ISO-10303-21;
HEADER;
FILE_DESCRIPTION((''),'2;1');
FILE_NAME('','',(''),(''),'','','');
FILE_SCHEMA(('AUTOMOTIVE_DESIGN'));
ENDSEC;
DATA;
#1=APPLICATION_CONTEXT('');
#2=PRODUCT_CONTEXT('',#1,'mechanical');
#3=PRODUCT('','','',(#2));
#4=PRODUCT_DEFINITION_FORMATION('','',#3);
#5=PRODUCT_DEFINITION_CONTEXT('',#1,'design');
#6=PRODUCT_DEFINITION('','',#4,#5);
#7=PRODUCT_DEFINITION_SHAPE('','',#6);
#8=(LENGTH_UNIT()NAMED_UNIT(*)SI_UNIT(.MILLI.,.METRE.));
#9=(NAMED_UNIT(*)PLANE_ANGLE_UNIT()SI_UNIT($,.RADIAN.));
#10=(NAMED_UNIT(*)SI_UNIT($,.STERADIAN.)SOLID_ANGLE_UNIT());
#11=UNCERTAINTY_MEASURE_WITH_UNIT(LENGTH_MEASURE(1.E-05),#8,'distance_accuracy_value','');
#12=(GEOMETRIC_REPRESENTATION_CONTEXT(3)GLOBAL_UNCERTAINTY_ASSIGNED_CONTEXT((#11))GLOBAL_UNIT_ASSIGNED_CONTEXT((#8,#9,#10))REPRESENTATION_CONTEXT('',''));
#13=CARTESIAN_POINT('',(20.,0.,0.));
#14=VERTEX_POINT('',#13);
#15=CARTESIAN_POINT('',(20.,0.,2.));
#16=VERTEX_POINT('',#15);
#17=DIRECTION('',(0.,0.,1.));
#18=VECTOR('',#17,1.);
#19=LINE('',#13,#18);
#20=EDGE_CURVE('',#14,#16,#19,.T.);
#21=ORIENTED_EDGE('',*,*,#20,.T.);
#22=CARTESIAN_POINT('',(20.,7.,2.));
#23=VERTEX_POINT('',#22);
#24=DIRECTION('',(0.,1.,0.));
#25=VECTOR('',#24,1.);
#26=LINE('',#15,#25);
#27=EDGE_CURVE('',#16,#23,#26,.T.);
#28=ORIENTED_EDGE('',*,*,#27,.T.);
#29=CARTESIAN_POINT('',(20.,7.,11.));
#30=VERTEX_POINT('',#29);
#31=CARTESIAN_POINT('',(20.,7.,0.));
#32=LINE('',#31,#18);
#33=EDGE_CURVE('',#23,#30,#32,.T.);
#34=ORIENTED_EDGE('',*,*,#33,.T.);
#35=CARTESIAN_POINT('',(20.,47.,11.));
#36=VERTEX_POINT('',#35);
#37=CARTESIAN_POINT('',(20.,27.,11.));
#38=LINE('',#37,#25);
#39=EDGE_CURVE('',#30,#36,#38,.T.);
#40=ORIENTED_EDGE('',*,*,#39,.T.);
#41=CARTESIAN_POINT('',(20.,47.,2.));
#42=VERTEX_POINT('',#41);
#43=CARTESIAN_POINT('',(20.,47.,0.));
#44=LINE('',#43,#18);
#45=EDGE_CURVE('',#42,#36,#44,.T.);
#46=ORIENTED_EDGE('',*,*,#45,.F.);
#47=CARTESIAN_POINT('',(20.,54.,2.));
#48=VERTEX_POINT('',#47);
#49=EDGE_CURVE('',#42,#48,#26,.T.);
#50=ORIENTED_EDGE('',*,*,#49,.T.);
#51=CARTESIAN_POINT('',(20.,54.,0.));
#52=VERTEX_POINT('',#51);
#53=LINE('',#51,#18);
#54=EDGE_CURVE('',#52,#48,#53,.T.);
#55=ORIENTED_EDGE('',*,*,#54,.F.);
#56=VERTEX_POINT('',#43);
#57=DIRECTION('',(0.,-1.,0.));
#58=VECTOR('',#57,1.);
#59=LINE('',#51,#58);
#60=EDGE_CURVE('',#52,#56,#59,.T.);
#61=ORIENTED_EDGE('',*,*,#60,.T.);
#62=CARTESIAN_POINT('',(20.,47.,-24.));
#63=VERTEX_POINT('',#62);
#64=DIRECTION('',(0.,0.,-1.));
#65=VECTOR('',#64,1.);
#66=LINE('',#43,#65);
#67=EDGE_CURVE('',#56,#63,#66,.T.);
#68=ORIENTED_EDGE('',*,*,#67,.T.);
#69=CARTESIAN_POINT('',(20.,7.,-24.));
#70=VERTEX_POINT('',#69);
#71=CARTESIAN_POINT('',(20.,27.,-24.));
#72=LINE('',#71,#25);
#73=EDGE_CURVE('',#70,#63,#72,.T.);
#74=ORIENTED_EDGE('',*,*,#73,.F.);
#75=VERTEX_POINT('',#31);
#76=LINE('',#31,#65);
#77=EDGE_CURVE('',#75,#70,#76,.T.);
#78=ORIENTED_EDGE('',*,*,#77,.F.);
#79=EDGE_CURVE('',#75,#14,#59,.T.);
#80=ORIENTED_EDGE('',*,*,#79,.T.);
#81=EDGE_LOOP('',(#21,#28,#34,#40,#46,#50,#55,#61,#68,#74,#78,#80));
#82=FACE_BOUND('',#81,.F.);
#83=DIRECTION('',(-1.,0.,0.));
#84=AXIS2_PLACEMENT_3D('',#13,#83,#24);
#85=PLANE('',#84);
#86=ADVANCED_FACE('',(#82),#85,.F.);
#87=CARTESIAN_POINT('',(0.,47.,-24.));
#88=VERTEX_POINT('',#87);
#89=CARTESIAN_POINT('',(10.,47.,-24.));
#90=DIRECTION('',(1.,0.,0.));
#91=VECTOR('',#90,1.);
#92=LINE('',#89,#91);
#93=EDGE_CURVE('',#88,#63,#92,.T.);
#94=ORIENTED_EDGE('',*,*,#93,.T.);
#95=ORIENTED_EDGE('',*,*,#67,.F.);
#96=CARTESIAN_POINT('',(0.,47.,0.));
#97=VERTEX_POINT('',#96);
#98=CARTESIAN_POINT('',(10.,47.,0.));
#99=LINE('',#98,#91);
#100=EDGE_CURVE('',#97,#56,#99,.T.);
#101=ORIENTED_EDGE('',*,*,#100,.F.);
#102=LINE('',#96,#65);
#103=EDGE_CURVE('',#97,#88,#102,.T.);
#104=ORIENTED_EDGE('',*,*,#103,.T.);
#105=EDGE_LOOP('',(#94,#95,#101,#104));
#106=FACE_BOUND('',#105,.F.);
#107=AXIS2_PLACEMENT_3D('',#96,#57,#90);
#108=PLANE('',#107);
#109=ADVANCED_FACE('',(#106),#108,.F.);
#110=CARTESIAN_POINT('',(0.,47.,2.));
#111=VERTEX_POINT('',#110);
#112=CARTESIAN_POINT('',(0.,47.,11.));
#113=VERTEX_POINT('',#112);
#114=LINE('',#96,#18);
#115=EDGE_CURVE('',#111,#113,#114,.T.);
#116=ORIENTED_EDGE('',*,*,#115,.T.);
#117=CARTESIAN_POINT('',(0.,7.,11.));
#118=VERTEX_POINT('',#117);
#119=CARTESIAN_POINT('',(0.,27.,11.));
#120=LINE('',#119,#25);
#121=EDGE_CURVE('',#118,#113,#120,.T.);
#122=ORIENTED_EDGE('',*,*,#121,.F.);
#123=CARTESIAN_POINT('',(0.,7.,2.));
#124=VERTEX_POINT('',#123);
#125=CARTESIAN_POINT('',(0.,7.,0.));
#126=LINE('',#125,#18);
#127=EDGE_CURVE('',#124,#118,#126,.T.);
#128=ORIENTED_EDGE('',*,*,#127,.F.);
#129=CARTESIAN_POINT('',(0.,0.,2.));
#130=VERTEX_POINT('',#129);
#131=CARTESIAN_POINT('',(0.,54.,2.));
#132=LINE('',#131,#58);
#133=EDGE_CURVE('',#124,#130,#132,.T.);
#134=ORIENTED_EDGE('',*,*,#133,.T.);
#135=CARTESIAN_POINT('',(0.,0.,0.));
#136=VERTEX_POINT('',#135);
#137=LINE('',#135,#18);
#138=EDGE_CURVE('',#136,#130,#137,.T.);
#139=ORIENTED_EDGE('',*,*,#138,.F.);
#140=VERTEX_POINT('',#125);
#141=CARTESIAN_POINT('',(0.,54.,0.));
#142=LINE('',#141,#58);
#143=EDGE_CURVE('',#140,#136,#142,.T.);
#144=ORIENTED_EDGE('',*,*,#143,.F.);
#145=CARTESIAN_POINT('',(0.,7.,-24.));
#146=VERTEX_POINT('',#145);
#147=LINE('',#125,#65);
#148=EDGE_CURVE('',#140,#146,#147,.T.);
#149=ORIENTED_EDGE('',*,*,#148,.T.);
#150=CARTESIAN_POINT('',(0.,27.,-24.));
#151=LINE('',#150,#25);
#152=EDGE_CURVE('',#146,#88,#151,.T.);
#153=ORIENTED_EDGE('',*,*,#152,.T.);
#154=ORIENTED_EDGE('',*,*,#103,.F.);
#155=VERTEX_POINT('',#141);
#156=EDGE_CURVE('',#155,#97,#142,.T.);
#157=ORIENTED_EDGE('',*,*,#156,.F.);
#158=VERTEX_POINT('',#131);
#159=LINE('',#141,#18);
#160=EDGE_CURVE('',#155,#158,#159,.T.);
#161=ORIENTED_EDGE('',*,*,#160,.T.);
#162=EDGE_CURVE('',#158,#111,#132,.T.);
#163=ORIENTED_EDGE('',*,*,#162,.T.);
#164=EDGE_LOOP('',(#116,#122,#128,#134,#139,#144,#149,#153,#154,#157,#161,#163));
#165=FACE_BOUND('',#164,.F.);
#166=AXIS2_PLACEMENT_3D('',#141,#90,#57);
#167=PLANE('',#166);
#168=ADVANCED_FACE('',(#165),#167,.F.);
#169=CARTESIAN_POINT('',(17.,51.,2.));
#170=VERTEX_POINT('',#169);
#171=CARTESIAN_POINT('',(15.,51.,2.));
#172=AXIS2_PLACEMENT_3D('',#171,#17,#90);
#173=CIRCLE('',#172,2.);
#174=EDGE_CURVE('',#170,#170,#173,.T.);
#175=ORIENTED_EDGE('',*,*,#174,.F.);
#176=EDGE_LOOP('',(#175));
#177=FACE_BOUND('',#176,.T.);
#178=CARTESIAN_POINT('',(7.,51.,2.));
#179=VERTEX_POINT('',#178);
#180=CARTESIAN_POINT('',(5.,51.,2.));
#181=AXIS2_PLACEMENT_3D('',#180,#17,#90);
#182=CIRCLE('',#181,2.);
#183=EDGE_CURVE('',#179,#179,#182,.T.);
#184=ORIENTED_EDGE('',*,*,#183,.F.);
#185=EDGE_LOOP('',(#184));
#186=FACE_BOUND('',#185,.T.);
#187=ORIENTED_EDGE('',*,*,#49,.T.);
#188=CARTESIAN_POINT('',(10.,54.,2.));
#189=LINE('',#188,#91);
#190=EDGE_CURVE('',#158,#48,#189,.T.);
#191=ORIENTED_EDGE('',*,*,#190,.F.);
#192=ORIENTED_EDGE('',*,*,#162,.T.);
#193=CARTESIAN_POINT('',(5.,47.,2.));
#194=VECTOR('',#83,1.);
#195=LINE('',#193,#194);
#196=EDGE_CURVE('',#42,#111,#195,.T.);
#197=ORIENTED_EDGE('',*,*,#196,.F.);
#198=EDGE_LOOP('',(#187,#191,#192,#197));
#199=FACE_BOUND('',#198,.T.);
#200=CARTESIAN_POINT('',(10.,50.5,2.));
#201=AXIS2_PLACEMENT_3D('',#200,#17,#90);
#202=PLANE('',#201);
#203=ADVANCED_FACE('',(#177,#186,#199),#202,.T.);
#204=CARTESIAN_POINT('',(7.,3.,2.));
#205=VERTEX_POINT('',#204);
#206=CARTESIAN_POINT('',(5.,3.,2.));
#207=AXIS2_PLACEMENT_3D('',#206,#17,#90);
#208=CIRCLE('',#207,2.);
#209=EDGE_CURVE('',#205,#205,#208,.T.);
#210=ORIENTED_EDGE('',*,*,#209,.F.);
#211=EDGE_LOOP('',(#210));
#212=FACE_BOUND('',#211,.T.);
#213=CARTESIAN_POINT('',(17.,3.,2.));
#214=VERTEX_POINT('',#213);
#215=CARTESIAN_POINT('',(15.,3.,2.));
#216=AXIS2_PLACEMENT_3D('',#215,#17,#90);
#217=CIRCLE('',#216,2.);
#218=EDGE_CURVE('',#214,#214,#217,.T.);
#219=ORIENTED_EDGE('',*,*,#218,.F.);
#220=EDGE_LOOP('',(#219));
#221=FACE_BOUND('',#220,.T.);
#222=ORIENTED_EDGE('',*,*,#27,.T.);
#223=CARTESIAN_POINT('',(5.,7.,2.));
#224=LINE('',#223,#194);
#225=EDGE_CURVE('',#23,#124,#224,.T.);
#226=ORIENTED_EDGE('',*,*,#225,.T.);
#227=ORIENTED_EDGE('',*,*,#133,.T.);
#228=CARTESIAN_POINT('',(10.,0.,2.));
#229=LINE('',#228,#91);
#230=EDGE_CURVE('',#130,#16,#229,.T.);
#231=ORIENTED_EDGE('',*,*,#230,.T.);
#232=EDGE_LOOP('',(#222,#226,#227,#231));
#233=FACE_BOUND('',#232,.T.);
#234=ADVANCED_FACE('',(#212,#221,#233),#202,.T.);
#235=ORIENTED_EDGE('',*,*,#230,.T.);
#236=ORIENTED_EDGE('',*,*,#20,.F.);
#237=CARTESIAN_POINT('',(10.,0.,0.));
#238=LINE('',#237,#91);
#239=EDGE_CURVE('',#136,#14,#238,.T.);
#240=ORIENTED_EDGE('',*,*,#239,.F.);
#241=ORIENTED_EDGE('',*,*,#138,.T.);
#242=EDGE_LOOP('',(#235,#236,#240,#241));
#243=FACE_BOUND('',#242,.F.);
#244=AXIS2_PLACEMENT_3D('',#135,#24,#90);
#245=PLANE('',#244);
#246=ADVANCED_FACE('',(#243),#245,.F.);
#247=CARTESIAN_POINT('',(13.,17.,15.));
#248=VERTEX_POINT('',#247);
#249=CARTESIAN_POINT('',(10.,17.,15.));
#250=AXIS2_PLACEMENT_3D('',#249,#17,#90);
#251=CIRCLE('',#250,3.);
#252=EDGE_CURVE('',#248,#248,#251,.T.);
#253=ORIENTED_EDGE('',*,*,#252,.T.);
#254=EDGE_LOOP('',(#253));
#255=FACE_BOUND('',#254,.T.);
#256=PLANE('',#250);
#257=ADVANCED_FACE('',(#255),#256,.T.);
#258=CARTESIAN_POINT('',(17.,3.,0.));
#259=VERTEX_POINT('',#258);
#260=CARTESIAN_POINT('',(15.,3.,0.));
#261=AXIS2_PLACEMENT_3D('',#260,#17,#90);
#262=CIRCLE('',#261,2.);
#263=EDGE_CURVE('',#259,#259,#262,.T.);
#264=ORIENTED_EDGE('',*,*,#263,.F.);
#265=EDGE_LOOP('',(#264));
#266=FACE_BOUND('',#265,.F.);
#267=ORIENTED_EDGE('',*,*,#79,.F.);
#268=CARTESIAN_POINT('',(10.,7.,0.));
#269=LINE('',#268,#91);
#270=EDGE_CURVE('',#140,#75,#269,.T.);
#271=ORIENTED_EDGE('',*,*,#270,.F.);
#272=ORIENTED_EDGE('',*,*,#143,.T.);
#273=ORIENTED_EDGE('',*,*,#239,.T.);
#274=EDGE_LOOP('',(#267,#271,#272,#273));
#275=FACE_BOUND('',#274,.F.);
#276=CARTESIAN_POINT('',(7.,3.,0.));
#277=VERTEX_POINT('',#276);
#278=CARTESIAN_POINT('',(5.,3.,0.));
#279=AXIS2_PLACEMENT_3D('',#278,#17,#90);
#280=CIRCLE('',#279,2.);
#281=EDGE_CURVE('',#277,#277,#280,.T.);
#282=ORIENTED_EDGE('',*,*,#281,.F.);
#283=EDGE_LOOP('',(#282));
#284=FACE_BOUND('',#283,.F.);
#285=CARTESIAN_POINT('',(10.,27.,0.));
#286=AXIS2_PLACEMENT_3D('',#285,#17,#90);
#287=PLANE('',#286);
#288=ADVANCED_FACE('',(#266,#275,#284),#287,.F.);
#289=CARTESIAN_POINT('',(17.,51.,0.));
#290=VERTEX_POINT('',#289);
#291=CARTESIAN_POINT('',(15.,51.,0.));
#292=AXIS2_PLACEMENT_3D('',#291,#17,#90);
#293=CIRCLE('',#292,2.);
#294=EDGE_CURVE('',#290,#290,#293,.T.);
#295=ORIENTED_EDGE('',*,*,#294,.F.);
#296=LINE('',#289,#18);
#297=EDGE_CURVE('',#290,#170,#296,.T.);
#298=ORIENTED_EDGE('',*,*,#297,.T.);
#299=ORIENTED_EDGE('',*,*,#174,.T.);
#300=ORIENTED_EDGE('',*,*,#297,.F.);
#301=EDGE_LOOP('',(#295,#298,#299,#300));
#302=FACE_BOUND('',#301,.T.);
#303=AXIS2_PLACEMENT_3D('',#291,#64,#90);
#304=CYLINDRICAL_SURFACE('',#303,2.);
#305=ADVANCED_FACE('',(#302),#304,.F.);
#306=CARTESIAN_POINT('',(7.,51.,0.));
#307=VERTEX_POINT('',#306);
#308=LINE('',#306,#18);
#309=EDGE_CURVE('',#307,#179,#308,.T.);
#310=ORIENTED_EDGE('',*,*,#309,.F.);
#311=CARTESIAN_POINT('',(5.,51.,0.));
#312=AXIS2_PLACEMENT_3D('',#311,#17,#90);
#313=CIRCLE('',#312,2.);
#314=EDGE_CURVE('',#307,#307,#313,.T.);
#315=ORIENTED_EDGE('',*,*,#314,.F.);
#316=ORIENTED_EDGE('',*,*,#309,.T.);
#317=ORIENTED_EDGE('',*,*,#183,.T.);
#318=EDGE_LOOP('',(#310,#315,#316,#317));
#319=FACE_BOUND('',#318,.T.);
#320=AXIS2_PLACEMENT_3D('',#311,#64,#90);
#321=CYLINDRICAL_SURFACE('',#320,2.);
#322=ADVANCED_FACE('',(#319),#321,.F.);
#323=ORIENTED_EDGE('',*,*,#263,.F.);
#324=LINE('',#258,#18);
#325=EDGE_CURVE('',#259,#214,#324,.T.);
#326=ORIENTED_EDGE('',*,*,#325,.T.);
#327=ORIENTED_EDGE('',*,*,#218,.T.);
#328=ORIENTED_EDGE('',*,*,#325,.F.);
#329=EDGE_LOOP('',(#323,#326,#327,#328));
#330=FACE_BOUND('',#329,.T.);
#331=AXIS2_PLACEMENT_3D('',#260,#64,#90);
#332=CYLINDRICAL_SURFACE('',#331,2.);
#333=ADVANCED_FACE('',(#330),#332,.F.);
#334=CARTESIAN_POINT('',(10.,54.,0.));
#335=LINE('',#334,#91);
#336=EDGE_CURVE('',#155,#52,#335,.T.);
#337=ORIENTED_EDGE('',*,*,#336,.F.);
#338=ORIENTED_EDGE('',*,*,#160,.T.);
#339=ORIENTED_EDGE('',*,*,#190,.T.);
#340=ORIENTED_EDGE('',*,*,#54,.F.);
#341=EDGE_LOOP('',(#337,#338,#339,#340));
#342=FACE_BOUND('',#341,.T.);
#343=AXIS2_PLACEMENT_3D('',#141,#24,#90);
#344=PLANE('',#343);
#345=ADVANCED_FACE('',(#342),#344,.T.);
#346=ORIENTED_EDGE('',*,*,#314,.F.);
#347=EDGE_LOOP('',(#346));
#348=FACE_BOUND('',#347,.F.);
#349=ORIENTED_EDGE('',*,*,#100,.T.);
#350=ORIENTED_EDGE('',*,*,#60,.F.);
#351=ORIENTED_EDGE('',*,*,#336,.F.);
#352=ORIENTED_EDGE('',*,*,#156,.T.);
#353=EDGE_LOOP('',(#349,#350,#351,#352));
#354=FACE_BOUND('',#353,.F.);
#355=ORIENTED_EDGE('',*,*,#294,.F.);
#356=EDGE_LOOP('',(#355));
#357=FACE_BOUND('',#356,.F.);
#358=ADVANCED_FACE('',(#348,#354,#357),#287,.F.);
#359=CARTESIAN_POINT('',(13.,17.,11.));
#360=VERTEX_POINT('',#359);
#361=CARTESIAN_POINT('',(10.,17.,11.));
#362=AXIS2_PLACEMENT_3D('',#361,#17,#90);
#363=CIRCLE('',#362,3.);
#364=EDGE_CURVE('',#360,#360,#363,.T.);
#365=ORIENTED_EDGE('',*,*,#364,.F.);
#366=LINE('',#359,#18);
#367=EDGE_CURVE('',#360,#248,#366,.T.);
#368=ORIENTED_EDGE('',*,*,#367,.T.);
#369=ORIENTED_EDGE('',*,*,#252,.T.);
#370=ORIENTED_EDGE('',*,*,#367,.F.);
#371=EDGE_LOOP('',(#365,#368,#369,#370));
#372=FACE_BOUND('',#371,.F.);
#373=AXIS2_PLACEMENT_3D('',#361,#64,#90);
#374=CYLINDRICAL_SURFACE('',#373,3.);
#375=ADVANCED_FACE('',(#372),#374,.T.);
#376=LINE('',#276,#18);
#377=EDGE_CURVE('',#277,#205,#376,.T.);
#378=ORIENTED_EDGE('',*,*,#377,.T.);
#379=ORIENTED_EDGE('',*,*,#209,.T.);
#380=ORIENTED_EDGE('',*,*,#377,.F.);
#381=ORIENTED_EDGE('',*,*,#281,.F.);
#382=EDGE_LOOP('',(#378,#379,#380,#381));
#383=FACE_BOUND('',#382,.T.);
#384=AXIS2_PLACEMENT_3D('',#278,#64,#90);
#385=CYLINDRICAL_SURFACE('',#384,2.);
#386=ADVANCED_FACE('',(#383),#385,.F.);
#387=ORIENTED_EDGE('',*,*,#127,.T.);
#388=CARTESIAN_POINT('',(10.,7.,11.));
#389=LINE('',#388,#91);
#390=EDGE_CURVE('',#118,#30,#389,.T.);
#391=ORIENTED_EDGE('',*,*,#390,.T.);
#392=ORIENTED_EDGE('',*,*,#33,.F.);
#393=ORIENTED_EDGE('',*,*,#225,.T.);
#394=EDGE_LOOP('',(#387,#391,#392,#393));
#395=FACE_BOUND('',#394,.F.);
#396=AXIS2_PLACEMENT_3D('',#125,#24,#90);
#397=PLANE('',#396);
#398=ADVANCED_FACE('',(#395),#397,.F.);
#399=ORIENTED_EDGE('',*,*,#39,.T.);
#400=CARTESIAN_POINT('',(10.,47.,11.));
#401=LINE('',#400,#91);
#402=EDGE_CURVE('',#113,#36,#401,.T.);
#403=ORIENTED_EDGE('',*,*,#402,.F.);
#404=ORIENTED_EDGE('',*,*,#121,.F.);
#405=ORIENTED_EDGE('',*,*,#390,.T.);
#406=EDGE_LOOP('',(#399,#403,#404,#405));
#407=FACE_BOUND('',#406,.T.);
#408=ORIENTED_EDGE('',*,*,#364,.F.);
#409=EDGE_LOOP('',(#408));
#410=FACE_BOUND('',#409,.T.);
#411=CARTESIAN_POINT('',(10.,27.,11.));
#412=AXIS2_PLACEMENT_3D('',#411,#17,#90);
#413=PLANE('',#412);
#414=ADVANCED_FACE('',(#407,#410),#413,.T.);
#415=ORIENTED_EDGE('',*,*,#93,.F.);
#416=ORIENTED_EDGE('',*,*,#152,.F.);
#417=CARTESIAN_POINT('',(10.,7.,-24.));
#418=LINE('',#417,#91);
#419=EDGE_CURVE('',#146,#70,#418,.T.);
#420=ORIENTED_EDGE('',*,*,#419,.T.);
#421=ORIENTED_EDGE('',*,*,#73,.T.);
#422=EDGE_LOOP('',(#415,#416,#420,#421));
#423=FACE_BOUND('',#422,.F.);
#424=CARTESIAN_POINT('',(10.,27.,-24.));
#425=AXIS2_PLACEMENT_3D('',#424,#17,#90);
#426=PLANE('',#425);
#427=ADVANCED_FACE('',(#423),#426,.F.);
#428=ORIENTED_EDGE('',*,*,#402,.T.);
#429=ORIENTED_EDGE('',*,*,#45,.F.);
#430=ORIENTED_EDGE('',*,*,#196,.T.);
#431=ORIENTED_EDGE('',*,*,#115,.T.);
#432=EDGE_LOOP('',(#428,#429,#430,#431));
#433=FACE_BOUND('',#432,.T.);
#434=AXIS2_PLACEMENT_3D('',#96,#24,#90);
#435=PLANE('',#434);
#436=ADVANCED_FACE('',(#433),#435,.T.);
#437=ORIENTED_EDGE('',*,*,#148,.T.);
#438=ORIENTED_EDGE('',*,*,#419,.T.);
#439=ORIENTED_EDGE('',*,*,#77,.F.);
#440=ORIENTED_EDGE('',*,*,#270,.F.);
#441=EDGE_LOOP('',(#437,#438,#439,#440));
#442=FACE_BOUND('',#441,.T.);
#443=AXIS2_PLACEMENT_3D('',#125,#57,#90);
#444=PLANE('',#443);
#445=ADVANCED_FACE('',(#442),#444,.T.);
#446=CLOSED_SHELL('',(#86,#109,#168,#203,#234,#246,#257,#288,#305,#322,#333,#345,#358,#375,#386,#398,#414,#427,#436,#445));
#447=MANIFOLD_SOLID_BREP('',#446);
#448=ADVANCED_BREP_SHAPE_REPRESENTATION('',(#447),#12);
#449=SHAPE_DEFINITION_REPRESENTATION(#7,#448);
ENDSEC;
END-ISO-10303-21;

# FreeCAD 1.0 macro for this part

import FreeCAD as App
import Part
import Sketcher
Q = App.Units.Quantity


def add_polygon(sketch, points):
    """Adds a closed chain of lines whose ends are joined by coincident constraints."""
    first, n = sketch.GeometryCount, len(points)
    for a, b in zip(points, points[1:] + points[:1]):
        sketch.addGeometry(Part.LineSegment(App.Vector(*a, 0), App.Vector(*b, 0)), False)
    for i in range(n):
        sketch.addConstraint(Sketcher.Constraint("Coincident", first + i, 2, first + (i + 1) % n, 1))

doc = App.newDocument("Part")
body = doc.addObject("PartDesign::Body", "Body")

sketch1 = body.newObject("Sketcher::SketchObject", "Sketch")
sketch1.AttachmentSupport = (doc.getObject("XY_Plane"), [""])
sketch1.MapMode = "FlatFace"
add_polygon(sketch1, [(0, 54), (0, 0), (20, 0), (20, 54)])
sketch1.addGeometry(Part.Circle(App.Vector(5, 3, 0), App.Vector(0, 0, 1), 2), False)
sketch1.addGeometry(Part.Circle(App.Vector(15, 3, 0), App.Vector(0, 0, 1), 2), False)
sketch1.addGeometry(Part.Circle(App.Vector(5, 51, 0), App.Vector(0, 0, 1), 2), False)
sketch1.addGeometry(Part.Circle(App.Vector(15, 51, 0), App.Vector(0, 0, 1), 2), False)
sketch1.addConstraint([
    Sketcher.Constraint("Vertical", 0),
    Sketcher.Constraint("Horizontal", 1),
    Sketcher.Constraint("Vertical", 2),
    Sketcher.Constraint("Horizontal", 3),
    Sketcher.Constraint("Coincident", 0, 2, -1, 1),
    Sketcher.Constraint("Equal", 4, 5),
    Sketcher.Constraint("Equal", 5, 6),
    Sketcher.Constraint("Equal", 6, 7),
    Sketcher.Constraint("Horizontal", 4, 3, 5, 3),
    Sketcher.Constraint("Horizontal", 6, 3, 7, 3),
    Sketcher.Constraint("Vertical", 4, 3, 6, 3),
    Sketcher.Constraint("Vertical", 5, 3, 7, 3),
    Sketcher.Constraint("Diameter", 4, Q("4 mm")),
    Sketcher.Constraint("DistanceX", 1, 1, 1, 2, Q("20 mm")),
    Sketcher.Constraint("DistanceY", 0, 2, 0, 1, Q("54 mm")),
    Sketcher.Constraint("DistanceX", -1, 1, 4, 3, Q("5 mm")),
    Sketcher.Constraint("DistanceY", -1, 1, 4, 3, Q("3 mm")),
    Sketcher.Constraint("DistanceX", -1, 1, 5, 3, Q("15 mm")),
    Sketcher.Constraint("DistanceY", -1, 1, 6, 3, Q("51 mm")),
])
pad1 = body.newObject("PartDesign::Pad", "Pad")
pad1.Profile = sketch1
pad1.Length = 2

sketch2 = body.newObject("Sketcher::SketchObject", "Sketch001")
sketch2.AttachmentSupport = (doc.getObject("XY_Plane"), [""])
sketch2.MapMode = "FlatFace"
add_polygon(sketch2, [(0, 47), (0, 7), (20, 7), (20, 47)])
sketch2.addConstraint([
    Sketcher.Constraint("Vertical", 0),
    Sketcher.Constraint("Horizontal", 1),
    Sketcher.Constraint("Vertical", 2),
    Sketcher.Constraint("Horizontal", 3),
    Sketcher.Constraint("PointOnObject", 0, 2, -2),
    Sketcher.Constraint("DistanceX", 1, 1, 1, 2, Q("20 mm")),
    Sketcher.Constraint("DistanceY", 0, 2, 0, 1, Q("40 mm")),
    Sketcher.Constraint("DistanceY", -1, 1, 0, 2, Q("7 mm")),
])
pad2 = body.newObject("PartDesign::Pad", "Pad001")
pad2.Profile = sketch2
pad2.Length = 11

sketch3 = body.newObject("Sketcher::SketchObject", "Sketch002")
sketch3.AttachmentSupport = (doc.getObject("XY_Plane"), [""])
sketch3.MapMode = "FlatFace"
add_polygon(sketch3, [(0, 47), (0, 7), (20, 7), (20, 47)])
sketch3.addConstraint([
    Sketcher.Constraint("Vertical", 0),
    Sketcher.Constraint("Horizontal", 1),
    Sketcher.Constraint("Vertical", 2),
    Sketcher.Constraint("Horizontal", 3),
    Sketcher.Constraint("PointOnObject", 0, 2, -2),
    Sketcher.Constraint("DistanceX", 1, 1, 1, 2, Q("20 mm")),
    Sketcher.Constraint("DistanceY", 0, 2, 0, 1, Q("40 mm")),
    Sketcher.Constraint("DistanceY", -1, 1, 0, 2, Q("7 mm")),
])
pad3 = body.newObject("PartDesign::Pad", "Pad002")
pad3.Profile = sketch3
pad3.Length = 24
pad3.Reversed = True

sketch4 = body.newObject("Sketcher::SketchObject", "Sketch003")
sketch4.AttachmentSupport = (doc.getObject("XY_Plane"), [""])
sketch4.MapMode = "FlatFace"
sketch4.AttachmentOffset = App.Placement(App.Vector(0, 0, 11), App.Rotation())
sketch4.addGeometry(Part.Circle(App.Vector(10, 17, 0), App.Vector(0, 0, 1), 3), False)
sketch4.addConstraint([
    Sketcher.Constraint("Diameter", 0, Q("6 mm")),
    Sketcher.Constraint("DistanceX", -1, 1, 0, 3, Q("10 mm")),
    Sketcher.Constraint("DistanceY", -1, 1, 0, 3, Q("17 mm")),
])
pad4 = body.newObject("PartDesign::Pad", "Pad003")
pad4.Profile = sketch4
pad4.Length = 4

doc.recompute()
